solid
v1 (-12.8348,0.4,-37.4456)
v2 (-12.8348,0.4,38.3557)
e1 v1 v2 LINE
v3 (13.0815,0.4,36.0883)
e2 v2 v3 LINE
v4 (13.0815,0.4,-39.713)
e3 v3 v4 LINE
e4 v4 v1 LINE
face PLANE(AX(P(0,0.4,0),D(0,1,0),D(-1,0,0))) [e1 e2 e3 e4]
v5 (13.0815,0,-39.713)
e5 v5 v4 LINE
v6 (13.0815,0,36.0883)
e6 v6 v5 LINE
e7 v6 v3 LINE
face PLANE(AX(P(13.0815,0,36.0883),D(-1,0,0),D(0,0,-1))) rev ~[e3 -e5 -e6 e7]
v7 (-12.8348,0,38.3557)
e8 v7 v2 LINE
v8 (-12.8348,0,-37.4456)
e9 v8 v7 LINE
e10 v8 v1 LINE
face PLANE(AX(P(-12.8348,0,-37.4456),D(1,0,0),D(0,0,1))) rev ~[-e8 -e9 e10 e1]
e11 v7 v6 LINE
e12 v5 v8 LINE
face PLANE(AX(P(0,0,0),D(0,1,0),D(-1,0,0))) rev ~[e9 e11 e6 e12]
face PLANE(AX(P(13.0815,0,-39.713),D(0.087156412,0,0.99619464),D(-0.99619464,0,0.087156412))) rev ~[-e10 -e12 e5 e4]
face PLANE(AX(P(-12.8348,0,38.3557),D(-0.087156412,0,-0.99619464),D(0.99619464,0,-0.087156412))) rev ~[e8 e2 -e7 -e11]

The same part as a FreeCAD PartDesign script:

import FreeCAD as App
import Part
import Sketcher
from FreeCAD import Vector
Q = App.Units.Quantity

doc = App.newDocument("Part")
body = doc.addObject("PartDesign::Body", "Body")

sketch1 = body.newObject("Sketcher::SketchObject", "Sketch")
sketch1.AttachmentSupport = (doc.getObject("XZ_Plane"), [""])
sketch1.MapMode = "FlatFace"
sketch1.addGeometry(Part.LineSegment(Vector(-13, -37, 0), Vector(-13, 38, 0)), False)
sketch1.addGeometry(Part.LineSegment(Vector(-13, 38, 0), Vector(13, 36, 0)), False)
sketch1.addGeometry(Part.LineSegment(Vector(13, 36, 0), Vector(13, -40, 0)), False)
sketch1.addGeometry(Part.LineSegment(Vector(13, -40, 0), Vector(-13, -37, 0)), False)
sketch1.addConstraint(Sketcher.Constraint("Coincident", 0, 2, 1, 1))
sketch1.addConstraint(Sketcher.Constraint("Coincident", 1, 2, 2, 1))
sketch1.addConstraint(Sketcher.Constraint("Coincident", 2, 2, 3, 1))
sketch1.addConstraint(Sketcher.Constraint("Coincident", 3, 2, 0, 1))
sketch1.addConstraint(Sketcher.Constraint("Vertical", 0))
sketch1.addConstraint(Sketcher.Constraint("Vertical", 2))
sketch1.addConstraint(Sketcher.Constraint("Parallel", 1, 3))
sketch1.addConstraint(Sketcher.Constraint("Angle", 1, Q("-5 deg")))
sketch1.addConstraint(Sketcher.Constraint("DistanceY", 0, 1, 0, 2, Q("75.8013 mm")))
sketch1.addConstraint(Sketcher.Constraint("DistanceY", 2, 2, -1, 1, Q("39.713 mm")))
sketch1.addConstraint(Sketcher.Constraint("DistanceY", 3, 2, 1, 2, Q("73.534 mm")))
sketch1.addConstraint(Sketcher.Constraint("DistanceX", 0, 2, -1, 1, Q("12.8348 mm")))
pad1 = body.newObject("PartDesign::Pad", "Pad")
pad1.Profile = sketch1
pad1.Length = 0.4
pad1.Reversed = True

doc.recompute()
